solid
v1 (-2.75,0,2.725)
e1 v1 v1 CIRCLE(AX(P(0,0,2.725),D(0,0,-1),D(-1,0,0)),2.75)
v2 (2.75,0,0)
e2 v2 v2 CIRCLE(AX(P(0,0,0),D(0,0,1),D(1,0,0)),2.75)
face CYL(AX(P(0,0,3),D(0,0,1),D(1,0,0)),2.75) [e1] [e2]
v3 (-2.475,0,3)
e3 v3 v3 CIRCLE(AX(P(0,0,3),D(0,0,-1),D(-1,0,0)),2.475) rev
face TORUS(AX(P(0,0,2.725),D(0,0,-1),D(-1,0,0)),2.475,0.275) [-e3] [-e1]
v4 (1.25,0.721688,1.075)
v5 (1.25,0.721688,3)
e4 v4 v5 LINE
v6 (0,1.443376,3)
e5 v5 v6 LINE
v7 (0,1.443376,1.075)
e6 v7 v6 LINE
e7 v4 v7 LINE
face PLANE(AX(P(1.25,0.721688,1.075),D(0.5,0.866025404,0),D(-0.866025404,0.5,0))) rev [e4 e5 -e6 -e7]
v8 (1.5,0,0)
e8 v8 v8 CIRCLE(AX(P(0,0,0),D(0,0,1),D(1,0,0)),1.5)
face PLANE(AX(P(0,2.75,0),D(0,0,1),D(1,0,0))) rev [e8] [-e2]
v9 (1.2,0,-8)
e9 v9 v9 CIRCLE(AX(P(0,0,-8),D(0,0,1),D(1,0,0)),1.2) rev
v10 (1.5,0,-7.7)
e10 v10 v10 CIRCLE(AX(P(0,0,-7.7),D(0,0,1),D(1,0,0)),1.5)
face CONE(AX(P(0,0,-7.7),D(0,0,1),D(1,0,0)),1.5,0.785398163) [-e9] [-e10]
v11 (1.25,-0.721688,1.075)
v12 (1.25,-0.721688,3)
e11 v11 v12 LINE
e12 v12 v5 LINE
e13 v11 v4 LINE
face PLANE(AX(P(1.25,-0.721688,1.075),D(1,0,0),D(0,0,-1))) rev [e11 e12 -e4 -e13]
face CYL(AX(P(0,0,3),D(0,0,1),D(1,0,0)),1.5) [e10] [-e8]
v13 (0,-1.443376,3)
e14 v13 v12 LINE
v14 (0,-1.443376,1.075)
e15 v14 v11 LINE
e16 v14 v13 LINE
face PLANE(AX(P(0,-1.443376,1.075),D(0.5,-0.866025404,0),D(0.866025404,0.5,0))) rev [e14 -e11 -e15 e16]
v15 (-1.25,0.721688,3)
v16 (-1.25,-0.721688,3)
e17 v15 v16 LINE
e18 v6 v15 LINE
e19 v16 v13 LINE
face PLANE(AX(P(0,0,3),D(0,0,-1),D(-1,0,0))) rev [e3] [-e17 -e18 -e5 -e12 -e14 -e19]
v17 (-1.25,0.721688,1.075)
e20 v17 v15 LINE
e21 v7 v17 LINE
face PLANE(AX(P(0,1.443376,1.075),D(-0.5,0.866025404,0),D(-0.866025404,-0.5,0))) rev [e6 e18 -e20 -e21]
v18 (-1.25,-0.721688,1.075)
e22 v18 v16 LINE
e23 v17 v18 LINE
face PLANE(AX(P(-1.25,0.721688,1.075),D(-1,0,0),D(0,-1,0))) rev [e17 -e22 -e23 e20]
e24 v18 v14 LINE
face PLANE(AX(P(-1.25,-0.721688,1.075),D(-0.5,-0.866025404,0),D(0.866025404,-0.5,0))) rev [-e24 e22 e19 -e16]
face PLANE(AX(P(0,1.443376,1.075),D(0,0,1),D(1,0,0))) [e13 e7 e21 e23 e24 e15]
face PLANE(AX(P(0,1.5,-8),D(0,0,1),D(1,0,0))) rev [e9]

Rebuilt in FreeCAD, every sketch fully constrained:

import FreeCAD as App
import Part
import Sketcher
from FreeCAD import Vector
Q = App.Units.Quantity


def edges_at(feature, points):
    """Names of the edges that pass closest to the given points."""
    edges = feature.Shape.Edges
    near = lambda p: min(range(len(edges)), key=lambda i: edges[i].distToShape(Part.Vertex(*p))[0])
    return sorted({f"Edge{near(p) + 1}" for p in points})

doc = App.newDocument("Part")
body = doc.addObject("PartDesign::Body", "Body")

sketch1 = body.newObject("Sketcher::SketchObject", "Sketch")
sketch1.AttachmentSupport = (doc.getObject("YZ_Plane"), [""])
sketch1.MapMode = "FlatFace"
sketch1.addGeometry([
    Part.LineSegment(Vector(2.8, 3, 0), Vector(0, 3, 0)),
    Part.LineSegment(Vector(0, 3, 0), Vector(0, -8, 0)),
    Part.LineSegment(Vector(0, -8, 0), Vector(1.5, -8, 0)),
    Part.LineSegment(Vector(1.5, -8, 0), Vector(1.5, 0, 0)),
    Part.LineSegment(Vector(1.5, 0, 0), Vector(2.8, 0, 0)),
    Part.LineSegment(Vector(2.8, 0, 0), Vector(2.8, 3, 0)),
], False)
sketch1.addConstraint([
    Sketcher.Constraint("Coincident", 0, 2, 1, 1),
    Sketcher.Constraint("Coincident", 1, 2, 2, 1),
    Sketcher.Constraint("Coincident", 2, 2, 3, 1),
    Sketcher.Constraint("Coincident", 3, 2, 4, 1),
    Sketcher.Constraint("Coincident", 4, 2, 5, 1),
    Sketcher.Constraint("Coincident", 5, 2, 0, 1),
    Sketcher.Constraint("Horizontal", 0),
    Sketcher.Constraint("Vertical", 1),
    Sketcher.Constraint("Horizontal", 2),
    Sketcher.Constraint("Vertical", 3),
    Sketcher.Constraint("Horizontal", 4),
    Sketcher.Constraint("Vertical", 5),
    Sketcher.Constraint("PointOnObject", 0, 2, -2),
    Sketcher.Constraint("PointOnObject", 3, 2, -1),
    Sketcher.Constraint("DistanceY", 1, 2, 1, 1, Q("11 mm")),
    Sketcher.Constraint("DistanceY", 3, 1, 3, 2, Q("8 mm")),
    Sketcher.Constraint("DistanceX", 2, 1, 2, 2, Q("1.5 mm")),
    Sketcher.Constraint("DistanceX", 0, 2, 0, 1, Q("2.75 mm")),
])
revolution = body.newObject("PartDesign::Revolution", "Revolution")
revolution.Profile = sketch1
revolution.ReferenceAxis = (sketch1, ["V_Axis"])
revolution.Angle = 360

sketch2 = body.newObject("Sketcher::SketchObject", "Sketch001")
sketch2.AttachmentSupport = (doc.getObject("XY_Plane"), [""])
sketch2.MapMode = "FlatFace"
sketch2.AttachmentOffset = App.Placement(Vector(0, 0, 3), App.Rotation())
sketch2.addGeometry([
    Part.LineSegment(Vector(0, 1.4, 0), Vector(-1.2, 0.7, 0)),
    Part.LineSegment(Vector(-1.2, 0.7, 0), Vector(-1.2, -0.7, 0)),
    Part.LineSegment(Vector(-1.2, -0.7, 0), Vector(0, -1.4, 0)),
    Part.LineSegment(Vector(0, -1.4, 0), Vector(1.2, -0.7, 0)),
    Part.LineSegment(Vector(1.2, -0.7, 0), Vector(1.2, 0.7, 0)),
    Part.LineSegment(Vector(1.2, 0.7, 0), Vector(0, 1.4, 0)),
], False)
sketch2.addConstraint([
    Sketcher.Constraint("Coincident", 0, 2, 1, 1),
    Sketcher.Constraint("Coincident", 1, 2, 2, 1),
    Sketcher.Constraint("Coincident", 2, 2, 3, 1),
    Sketcher.Constraint("Coincident", 3, 2, 4, 1),
    Sketcher.Constraint("Coincident", 4, 2, 5, 1),
    Sketcher.Constraint("Coincident", 5, 2, 0, 1),
    Sketcher.Constraint("Vertical", 1),
    Sketcher.Constraint("Vertical", 4),
    Sketcher.Constraint("Symmetric", 0, 2, 3, 2, -1, 1),
    Sketcher.Constraint("Symmetric", 2, 2, 5, 2, -1, 1),
    Sketcher.Constraint("PointOnObject", 2, 2, -2),
    Sketcher.Constraint("Parallel", 2, 5),
    Sketcher.Constraint("Horizontal", 1, 2, 3, 2),
    Sketcher.Constraint("Angle", 0, Q("-150 deg")),
    Sketcher.Constraint("DistanceX", 1, 2, 3, 2, Q("2.5 mm")),
    Sketcher.Constraint("DistanceY", 1, 2, 1, 1, Q("1.443376 mm")),
])
pocket1 = body.newObject("PartDesign::Pocket", "Pocket")
pocket1.Profile = sketch2
pocket1.Length = 1.925
doc.recompute()

fillet = body.newObject("PartDesign::Fillet", "Fillet")
fillet.Base = (pocket1, edges_at(pocket1, [(-2.75, 0, 3)]))
fillet.Radius = 0.275
doc.recompute()

chamfer = body.newObject("PartDesign::Chamfer", "Chamfer")
chamfer.Base = (fillet, edges_at(fillet, [(-1.5, 0, -8)]))
chamfer.Size = 0.3

doc.recompute()
